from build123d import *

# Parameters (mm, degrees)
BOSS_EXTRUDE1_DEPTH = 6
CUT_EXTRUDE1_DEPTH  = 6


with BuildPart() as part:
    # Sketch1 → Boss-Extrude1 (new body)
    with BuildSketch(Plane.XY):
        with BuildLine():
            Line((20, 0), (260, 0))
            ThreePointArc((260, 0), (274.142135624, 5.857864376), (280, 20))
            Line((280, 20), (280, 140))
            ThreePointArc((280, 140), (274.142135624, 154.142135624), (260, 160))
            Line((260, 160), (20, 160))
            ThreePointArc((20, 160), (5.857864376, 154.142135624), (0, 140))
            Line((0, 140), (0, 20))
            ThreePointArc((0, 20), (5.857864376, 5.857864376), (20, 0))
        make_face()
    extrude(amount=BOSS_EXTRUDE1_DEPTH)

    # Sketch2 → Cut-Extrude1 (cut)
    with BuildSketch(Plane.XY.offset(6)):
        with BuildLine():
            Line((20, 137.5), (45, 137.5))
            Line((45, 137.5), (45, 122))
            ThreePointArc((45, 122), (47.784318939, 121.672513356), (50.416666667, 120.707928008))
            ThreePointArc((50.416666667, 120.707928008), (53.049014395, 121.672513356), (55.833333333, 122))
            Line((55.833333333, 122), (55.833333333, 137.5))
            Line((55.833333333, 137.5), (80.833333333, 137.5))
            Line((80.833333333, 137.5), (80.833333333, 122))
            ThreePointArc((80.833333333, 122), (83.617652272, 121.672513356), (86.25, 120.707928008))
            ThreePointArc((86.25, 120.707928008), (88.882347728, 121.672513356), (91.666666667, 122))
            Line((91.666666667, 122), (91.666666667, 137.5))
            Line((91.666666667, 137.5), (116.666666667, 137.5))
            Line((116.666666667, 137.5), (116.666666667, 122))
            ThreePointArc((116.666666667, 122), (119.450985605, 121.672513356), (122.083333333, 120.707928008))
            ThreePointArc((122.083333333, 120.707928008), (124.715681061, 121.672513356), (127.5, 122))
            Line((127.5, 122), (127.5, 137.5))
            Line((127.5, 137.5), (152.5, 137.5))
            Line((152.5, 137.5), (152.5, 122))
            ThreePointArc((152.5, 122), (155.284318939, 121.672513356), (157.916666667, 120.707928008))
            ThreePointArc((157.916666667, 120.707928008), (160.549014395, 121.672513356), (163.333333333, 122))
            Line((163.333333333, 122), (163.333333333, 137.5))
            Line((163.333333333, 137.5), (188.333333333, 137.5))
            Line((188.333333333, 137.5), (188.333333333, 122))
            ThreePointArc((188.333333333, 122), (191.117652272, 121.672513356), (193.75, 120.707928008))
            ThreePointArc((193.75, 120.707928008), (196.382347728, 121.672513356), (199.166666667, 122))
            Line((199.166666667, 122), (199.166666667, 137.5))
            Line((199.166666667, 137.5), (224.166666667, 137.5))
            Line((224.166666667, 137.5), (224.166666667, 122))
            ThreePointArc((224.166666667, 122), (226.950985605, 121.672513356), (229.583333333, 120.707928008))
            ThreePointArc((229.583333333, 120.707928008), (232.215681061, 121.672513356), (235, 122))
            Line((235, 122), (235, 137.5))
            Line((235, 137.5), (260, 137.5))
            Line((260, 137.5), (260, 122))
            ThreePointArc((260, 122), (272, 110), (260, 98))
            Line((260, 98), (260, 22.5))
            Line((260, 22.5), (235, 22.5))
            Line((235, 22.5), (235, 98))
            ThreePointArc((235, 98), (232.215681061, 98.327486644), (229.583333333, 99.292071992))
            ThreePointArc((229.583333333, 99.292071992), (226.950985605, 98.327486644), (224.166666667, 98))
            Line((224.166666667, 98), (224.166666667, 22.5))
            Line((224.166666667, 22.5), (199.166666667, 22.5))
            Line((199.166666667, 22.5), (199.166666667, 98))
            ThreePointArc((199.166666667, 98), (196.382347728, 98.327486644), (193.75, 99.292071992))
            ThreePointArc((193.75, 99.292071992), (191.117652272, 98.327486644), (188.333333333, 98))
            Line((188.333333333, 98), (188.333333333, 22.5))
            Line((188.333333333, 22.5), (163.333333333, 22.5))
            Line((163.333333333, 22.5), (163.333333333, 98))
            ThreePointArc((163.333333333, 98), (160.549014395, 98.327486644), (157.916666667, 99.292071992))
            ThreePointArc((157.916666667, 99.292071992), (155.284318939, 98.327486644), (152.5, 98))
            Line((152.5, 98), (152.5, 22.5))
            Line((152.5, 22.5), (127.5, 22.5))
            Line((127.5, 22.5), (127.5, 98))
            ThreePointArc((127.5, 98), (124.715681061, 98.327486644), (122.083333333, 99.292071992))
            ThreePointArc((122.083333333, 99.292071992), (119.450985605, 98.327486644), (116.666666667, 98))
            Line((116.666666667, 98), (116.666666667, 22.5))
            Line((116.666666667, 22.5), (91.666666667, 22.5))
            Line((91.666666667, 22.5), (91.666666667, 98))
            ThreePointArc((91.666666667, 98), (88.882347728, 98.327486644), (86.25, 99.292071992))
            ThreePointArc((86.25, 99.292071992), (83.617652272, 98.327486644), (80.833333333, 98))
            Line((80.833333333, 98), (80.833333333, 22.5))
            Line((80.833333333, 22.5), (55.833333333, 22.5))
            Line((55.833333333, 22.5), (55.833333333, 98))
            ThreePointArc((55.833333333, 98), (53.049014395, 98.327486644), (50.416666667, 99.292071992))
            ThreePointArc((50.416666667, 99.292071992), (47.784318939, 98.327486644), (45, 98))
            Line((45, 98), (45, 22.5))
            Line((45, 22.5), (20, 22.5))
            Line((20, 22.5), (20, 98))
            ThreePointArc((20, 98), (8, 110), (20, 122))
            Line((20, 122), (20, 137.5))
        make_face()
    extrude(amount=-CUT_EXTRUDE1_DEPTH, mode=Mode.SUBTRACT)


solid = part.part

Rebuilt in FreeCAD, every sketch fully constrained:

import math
import FreeCAD as App
import Part
import Sketcher
from FreeCAD import Vector

doc = App.newDocument("Part")
body = doc.addObject("PartDesign::Body", "Body")

sketch1 = body.newObject("Sketcher::SketchObject", "Sketch")
sketch1.AttachmentSupport = (doc.getObject("XY_Plane"), [""])
sketch1.MapMode = "FlatFace"
sketch1.addGeometry([
    Part.LineSegment(Vector(20, 0, 0), Vector(260, 0, 0)),
    Part.ArcOfCircle(Part.Circle(Vector(260, 20, 0), Vector(0, 0, 1), 20), math.radians(-90), math.radians(0)),
    Part.LineSegment(Vector(280, 20, 0), Vector(280, 140, 0)),
    Part.ArcOfCircle(Part.Circle(Vector(260, 140, 0), Vector(0, 0, 1), 20), math.radians(0), math.radians(90)),
    Part.LineSegment(Vector(260, 160, 0), Vector(20, 160, 0)),
    Part.ArcOfCircle(Part.Circle(Vector(20, 140, 0), Vector(0, 0, 1), 20), math.radians(90), math.radians(180)),
    Part.LineSegment(Vector(0, 140, 0), Vector(0, 20, 0)),
    Part.ArcOfCircle(Part.Circle(Vector(20, 20, 0), Vector(0, 0, 1), 20), math.radians(180), math.radians(270)),
], False)
sketch1.addConstraint([
    Sketcher.Constraint("Tangent", 0, 2, 1, 1),
    Sketcher.Constraint("Tangent", 1, 2, 2, 1),
    Sketcher.Constraint("Tangent", 2, 2, 3, 1),
    Sketcher.Constraint("Tangent", 3, 2, 4, 1),
    Sketcher.Constraint("Tangent", 4, 2, 5, 1),
    Sketcher.Constraint("Tangent", 5, 2, 6, 1),
    Sketcher.Constraint("Tangent", 6, 2, 7, 1),
    Sketcher.Constraint("Tangent", 7, 2, 0, 1),
    Sketcher.Constraint("Horizontal", 0),
    Sketcher.Constraint("Vertical", 2),
    Sketcher.Constraint("Horizontal", 4),
    Sketcher.Constraint("Vertical", 6),
    Sketcher.Constraint("Equal", 1, 3),
    Sketcher.Constraint("Equal", 3, 5),
    Sketcher.Constraint("Equal", 5, 7),
    Sketcher.Constraint("PointOnObject", 0, 2, -1),
    Sketcher.Constraint("PointOnObject", 5, 2, -2),
    Sketcher.Constraint("Radius", 1, 20.0),
    Sketcher.Constraint("DistanceX", 0, 1, 0, 2, 240.0),
    Sketcher.Constraint("DistanceY", 2, 1, 2, 2, 120.0),
])
pad1 = body.newObject("PartDesign::Pad", "Pad")
pad1.Profile = sketch1
pad1.Length = 6

sketch2 = body.newObject("Sketcher::SketchObject", "Sketch001")
sketch2.AttachmentSupport = (doc.getObject("XY_Plane"), [""])
sketch2.MapMode = "FlatFace"
sketch2.AttachmentOffset = App.Placement(Vector(0, 0, 6), App.Rotation())
sketch2.addGeometry([
    Part.LineSegment(Vector(45, 138, 0), Vector(20, 138, 0)),
    Part.LineSegment(Vector(20, 138, 0), Vector(20, 122, 0)),
    Part.ArcOfCircle(Part.Circle(Vector(20, 110, 0), Vector(0, 0, 1), 12), math.radians(90), math.radians(270)),
    Part.LineSegment(Vector(20, 98, 0), Vector(20, 22, 0)),
    Part.LineSegment(Vector(20, 22, 0), Vector(45, 22, 0)),
    Part.LineSegment(Vector(45, 22, 0), Vector(45, 98, 0)),
    Part.ArcOfCircle(Part.Circle(Vector(45, 110, 0), Vector(0, 0, 1), 12), math.radians(-90), math.radians(-63)),
    Part.ArcOfCircle(Part.Circle(Vector(56, 110, 0), Vector(0, 0, 1), 12), math.radians(-117), math.radians(-90)),
    Part.LineSegment(Vector(56, 98, 0), Vector(56, 22, 0)),
    Part.LineSegment(Vector(56, 22, 0), Vector(81, 22, 0)),
    Part.LineSegment(Vector(81, 22, 0), Vector(81, 98, 0)),
    Part.ArcOfCircle(Part.Circle(Vector(81, 110, 0), Vector(0, 0, 1), 12), math.radians(-90), math.radians(-63)),
    Part.ArcOfCircle(Part.Circle(Vector(92, 110, 0), Vector(0, 0, 1), 12), math.radians(-117), math.radians(-90)),
    Part.LineSegment(Vector(92, 98, 0), Vector(92, 22, 0)),
    Part.LineSegment(Vector(92, 22, 0), Vector(117, 22, 0)),
    Part.LineSegment(Vector(117, 22, 0), Vector(117, 98, 0)),
    Part.ArcOfCircle(Part.Circle(Vector(117, 110, 0), Vector(0, 0, 1), 12), math.radians(-90), math.radians(-63)),
    Part.ArcOfCircle(Part.Circle(Vector(128, 110, 0), Vector(0, 0, 1), 12), math.radians(-117), math.radians(-90)),
    Part.LineSegment(Vector(128, 98, 0), Vector(128, 22, 0)),
    Part.LineSegment(Vector(128, 22, 0), Vector(152, 22, 0)),
    Part.LineSegment(Vector(152, 22, 0), Vector(152, 98, 0)),
    Part.ArcOfCircle(Part.Circle(Vector(152, 110, 0), Vector(0, 0, 1), 12), math.radians(-90), math.radians(-63)),
    Part.ArcOfCircle(Part.Circle(Vector(163, 110, 0), Vector(0, 0, 1), 12), math.radians(-117), math.radians(-90)),
    Part.LineSegment(Vector(163, 98, 0), Vector(163, 22, 0)),
    Part.LineSegment(Vector(163, 22, 0), Vector(188, 22, 0)),
    Part.LineSegment(Vector(188, 22, 0), Vector(188, 98, 0)),
    Part.ArcOfCircle(Part.Circle(Vector(188, 110, 0), Vector(0, 0, 1), 12), math.radians(-90), math.radians(-63)),
    Part.ArcOfCircle(Part.Circle(Vector(199, 110, 0), Vector(0, 0, 1), 12), math.radians(-117), math.radians(-90)),
    Part.LineSegment(Vector(199, 98, 0), Vector(199, 22, 0)),
    Part.LineSegment(Vector(199, 22, 0), Vector(224, 22, 0)),
    Part.LineSegment(Vector(224, 22, 0), Vector(224, 98, 0)),
    Part.ArcOfCircle(Part.Circle(Vector(224, 110, 0), Vector(0, 0, 1), 12), math.radians(-90), math.radians(-63)),
    Part.ArcOfCircle(Part.Circle(Vector(235, 110, 0), Vector(0, 0, 1), 12), math.radians(-117), math.radians(-90)),
    Part.LineSegment(Vector(235, 98, 0), Vector(235, 22, 0)),
    Part.LineSegment(Vector(235, 22, 0), Vector(260, 22, 0)),
    Part.LineSegment(Vector(260, 22, 0), Vector(260, 98, 0)),
    Part.ArcOfCircle(Part.Circle(Vector(260, 110, 0), Vector(0, 0, 1), 12), math.radians(-90), math.radians(90)),
    Part.LineSegment(Vector(260, 122, 0), Vector(260, 138, 0)),
    Part.LineSegment(Vector(260, 138, 0), Vector(235, 138, 0)),
    Part.LineSegment(Vector(235, 138, 0), Vector(235, 122, 0)),
    Part.ArcOfCircle(Part.Circle(Vector(235, 110, 0), Vector(0, 0, 1), 12), math.radians(90), math.radians(117)),
    Part.ArcOfCircle(Part.Circle(Vector(224, 110, 0), Vector(0, 0, 1), 12), math.radians(63), math.radians(90)),
    Part.LineSegment(Vector(224, 122, 0), Vector(224, 138, 0)),
    Part.LineSegment(Vector(224, 138, 0), Vector(199, 138, 0)),
    Part.LineSegment(Vector(199, 138, 0), Vector(199, 122, 0)),
    Part.ArcOfCircle(Part.Circle(Vector(199, 110, 0), Vector(0, 0, 1), 12), math.radians(90), math.radians(117)),
    Part.ArcOfCircle(Part.Circle(Vector(188, 110, 0), Vector(0, 0, 1), 12), math.radians(63), math.radians(90)),
    Part.LineSegment(Vector(188, 122, 0), Vector(188, 138, 0)),
    Part.LineSegment(Vector(188, 138, 0), Vector(163, 138, 0)),
    Part.LineSegment(Vector(163, 138, 0), Vector(163, 122, 0)),
    Part.ArcOfCircle(Part.Circle(Vector(163, 110, 0), Vector(0, 0, 1), 12), math.radians(90), math.radians(117)),
    Part.ArcOfCircle(Part.Circle(Vector(152, 110, 0), Vector(0, 0, 1), 12), math.radians(63), math.radians(90)),
    Part.LineSegment(Vector(152, 122, 0), Vector(152, 138, 0)),
    Part.LineSegment(Vector(152, 138, 0), Vector(128, 138, 0)),
    Part.LineSegment(Vector(128, 138, 0), Vector(128, 122, 0)),
    Part.ArcOfCircle(Part.Circle(Vector(128, 110, 0), Vector(0, 0, 1), 12), math.radians(90), math.radians(117)),
    Part.ArcOfCircle(Part.Circle(Vector(117, 110, 0), Vector(0, 0, 1), 12), math.radians(63), math.radians(90)),
    Part.LineSegment(Vector(117, 122, 0), Vector(117, 138, 0)),
    Part.LineSegment(Vector(117, 138, 0), Vector(92, 138, 0)),
    Part.LineSegment(Vector(92, 138, 0), Vector(92, 122, 0)),
    Part.ArcOfCircle(Part.Circle(Vector(92, 110, 0), Vector(0, 0, 1), 12), math.radians(90), math.radians(117)),
    Part.ArcOfCircle(Part.Circle(Vector(81, 110, 0), Vector(0, 0, 1), 12), math.radians(63), math.radians(90)),
    Part.LineSegment(Vector(81, 122, 0), Vector(81, 138, 0)),
    Part.LineSegment(Vector(81, 138, 0), Vector(56, 138, 0)),
    Part.LineSegment(Vector(56, 138, 0), Vector(56, 122, 0)),
    Part.ArcOfCircle(Part.Circle(Vector(56, 110, 0), Vector(0, 0, 1), 12), math.radians(90), math.radians(117)),
    Part.ArcOfCircle(Part.Circle(Vector(45, 110, 0), Vector(0, 0, 1), 12), math.radians(63), math.radians(90)),
    Part.LineSegment(Vector(45, 122, 0), Vector(45, 138, 0)),
], False)
sketch2.addConstraint([
    Sketcher.Constraint("Coincident", 0, 2, 1, 1),
    Sketcher.Constraint("Coincident", 1, 2, 2, 1),
    Sketcher.Constraint("Coincident", 2, 2, 3, 1),
    Sketcher.Constraint("Coincident", 3, 2, 4, 1),
    Sketcher.Constraint("Coincident", 4, 2, 5, 1),
    Sketcher.Constraint("Coincident", 5, 2, 6, 1),
    Sketcher.Constraint("Coincident", 6, 2, 7, 1),
    Sketcher.Constraint("Coincident", 7, 2, 8, 1),
    Sketcher.Constraint("Coincident", 8, 2, 9, 1),
    Sketcher.Constraint("Coincident", 9, 2, 10, 1),
    Sketcher.Constraint("Coincident", 10, 2, 11, 1),
    Sketcher.Constraint("Coincident", 11, 2, 12, 1),
    Sketcher.Constraint("Coincident", 12, 2, 13, 1),
    Sketcher.Constraint("Coincident", 13, 2, 14, 1),
    Sketcher.Constraint("Coincident", 14, 2, 15, 1),
    Sketcher.Constraint("Coincident", 15, 2, 16, 1),
    Sketcher.Constraint("Coincident", 16, 2, 17, 1),
    Sketcher.Constraint("Coincident", 17, 2, 18, 1),
    Sketcher.Constraint("Coincident", 18, 2, 19, 1),
    Sketcher.Constraint("Coincident", 19, 2, 20, 1),
    Sketcher.Constraint("Coincident", 20, 2, 21, 1),
    Sketcher.Constraint("Coincident", 21, 2, 22, 1),
    Sketcher.Constraint("Coincident", 22, 2, 23, 1),
    Sketcher.Constraint("Coincident", 23, 2, 24, 1),
    Sketcher.Constraint("Coincident", 24, 2, 25, 1),
    Sketcher.Constraint("Coincident", 25, 2, 26, 1),
    Sketcher.Constraint("Coincident", 26, 2, 27, 1),
    Sketcher.Constraint("Coincident", 27, 2, 28, 1),
    Sketcher.Constraint("Coincident", 28, 2, 29, 1),
    Sketcher.Constraint("Coincident", 29, 2, 30, 1),
    Sketcher.Constraint("Coincident", 30, 2, 31, 1),
    Sketcher.Constraint("Coincident", 31, 2, 32, 1),
    Sketcher.Constraint("Coincident", 32, 2, 33, 1),
    Sketcher.Constraint("Coincident", 33, 2, 34, 1),
    Sketcher.Constraint("Coincident", 34, 2, 35, 1),
    Sketcher.Constraint("Coincident", 35, 2, 36, 1),
    Sketcher.Constraint("Coincident", 36, 2, 37, 1),
    Sketcher.Constraint("Coincident", 37, 2, 38, 1),
    Sketcher.Constraint("Coincident", 38, 2, 39, 1),
    Sketcher.Constraint("Coincident", 39, 2, 40, 1),
    Sketcher.Constraint("Coincident", 40, 2, 41, 1),
    Sketcher.Constraint("Coincident", 41, 2, 42, 1),
    Sketcher.Constraint("Coincident", 42, 2, 43, 1),
    Sketcher.Constraint("Coincident", 43, 2, 44, 1),
    Sketcher.Constraint("Coincident", 44, 2, 45, 1),
    Sketcher.Constraint("Coincident", 45, 2, 46, 1),
    Sketcher.Constraint("Coincident", 46, 2, 47, 1),
    Sketcher.Constraint("Coincident", 47, 2, 48, 1),
    Sketcher.Constraint("Coincident", 48, 2, 49, 1),
    Sketcher.Constraint("Coincident", 49, 2, 50, 1),
    Sketcher.Constraint("Coincident", 50, 2, 51, 1),
    Sketcher.Constraint("Coincident", 51, 2, 52, 1),
    Sketcher.Constraint("Coincident", 52, 2, 53, 1),
    Sketcher.Constraint("Coincident", 53, 2, 54, 1),
    Sketcher.Constraint("Coincident", 54, 2, 55, 1),
    Sketcher.Constraint("Coincident", 55, 2, 56, 1),
    Sketcher.Constraint("Coincident", 56, 2, 57, 1),
    Sketcher.Constraint("Coincident", 57, 2, 58, 1),
    Sketcher.Constraint("Coincident", 58, 2, 59, 1),
    Sketcher.Constraint("Coincident", 59, 2, 60, 1),
    Sketcher.Constraint("Coincident", 60, 2, 61, 1),
    Sketcher.Constraint("Coincident", 61, 2, 62, 1),
    Sketcher.Constraint("Coincident", 62, 2, 63, 1),
    Sketcher.Constraint("Coincident", 63, 2, 64, 1),
    Sketcher.Constraint("Coincident", 64, 2, 65, 1),
    Sketcher.Constraint("Coincident", 65, 2, 66, 1),
    Sketcher.Constraint("Coincident", 66, 2, 67, 1),
    Sketcher.Constraint("Coincident", 67, 2, 0, 1),
    Sketcher.Constraint("Horizontal", 0),
    Sketcher.Constraint("Vertical", 1),
    Sketcher.Constraint("Vertical", 3),
    Sketcher.Constraint("Horizontal", 4),
    Sketcher.Constraint("Vertical", 5),
    Sketcher.Constraint("Vertical", 8),
    Sketcher.Constraint("Horizontal", 9),
    Sketcher.Constraint("Vertical", 10),
    Sketcher.Constraint("Vertical", 13),
    Sketcher.Constraint("Horizontal", 14),
    Sketcher.Constraint("Vertical", 15),
    Sketcher.Constraint("Vertical", 18),
    Sketcher.Constraint("Horizontal", 19),
    Sketcher.Constraint("Vertical", 20),
    Sketcher.Constraint("Vertical", 23),
    Sketcher.Constraint("Horizontal", 24),
    Sketcher.Constraint("Vertical", 25),
    Sketcher.Constraint("Vertical", 28),
    Sketcher.Constraint("Horizontal", 29),
    Sketcher.Constraint("Vertical", 30),
    Sketcher.Constraint("Vertical", 33),
    Sketcher.Constraint("Horizontal", 34),
    Sketcher.Constraint("Vertical", 35),
    Sketcher.Constraint("Vertical", 37),
    Sketcher.Constraint("Horizontal", 38),
    Sketcher.Constraint("Vertical", 39),
    Sketcher.Constraint("Vertical", 42),
    Sketcher.Constraint("Horizontal", 43),
    Sketcher.Constraint("Vertical", 44),
    Sketcher.Constraint("Vertical", 47),
    Sketcher.Constraint("Horizontal", 48),
    Sketcher.Constraint("Vertical", 49),
    Sketcher.Constraint("Vertical", 52),
    Sketcher.Constraint("Horizontal", 53),
    Sketcher.Constraint("Vertical", 54),
    Sketcher.Constraint("Vertical", 57),
    Sketcher.Constraint("Horizontal", 58),
    Sketcher.Constraint("Vertical", 59),
    Sketcher.Constraint("Vertical", 62),
    Sketcher.Constraint("Horizontal", 63),
    Sketcher.Constraint("Vertical", 64),
    Sketcher.Constraint("Vertical", 67),
    Sketcher.Constraint("Coincident", 40, 3, 32, 3),
    Sketcher.Constraint("Coincident", 41, 3, 31, 3),
    Sketcher.Constraint("Coincident", 45, 3, 27, 3),
    Sketcher.Constraint("Coincident", 46, 3, 26, 3),
    Sketcher.Constraint("Coincident", 50, 3, 22, 3),
    Sketcher.Constraint("Coincident", 51, 3, 21, 3),
    Sketcher.Constraint("Coincident", 55, 3, 17, 3),
    Sketcher.Constraint("Coincident", 56, 3, 16, 3),
    Sketcher.Constraint("Coincident", 60, 3, 12, 3),
    Sketcher.Constraint("Coincident", 61, 3, 11, 3),
    Sketcher.Constraint("Coincident", 65, 3, 7, 3),
    Sketcher.Constraint("Coincident", 66, 3, 6, 3),
    Sketcher.Constraint("Equal", 2, 6),
    Sketcher.Constraint("Equal", 6, 7),
    Sketcher.Constraint("Equal", 7, 11),
    Sketcher.Constraint("Equal", 11, 12),
    Sketcher.Constraint("Equal", 12, 16),
    Sketcher.Constraint("Equal", 16, 17),
    Sketcher.Constraint("Equal", 17, 21),
    Sketcher.Constraint("Equal", 21, 22),
    Sketcher.Constraint("Equal", 22, 26),
    Sketcher.Constraint("Equal", 26, 27),
    Sketcher.Constraint("Equal", 27, 31),
    Sketcher.Constraint("Equal", 31, 32),
    Sketcher.Constraint("Equal", 32, 36),
    Sketcher.Constraint("Equal", 36, 40),
    Sketcher.Constraint("Equal", 40, 41),
    Sketcher.Constraint("Equal", 41, 45),
    Sketcher.Constraint("Equal", 45, 46),
    Sketcher.Constraint("Equal", 46, 50),
    Sketcher.Constraint("Equal", 50, 51),
    Sketcher.Constraint("Equal", 51, 55),
    Sketcher.Constraint("Equal", 55, 56),
    Sketcher.Constraint("Equal", 56, 60),
    Sketcher.Constraint("Equal", 60, 61),
    Sketcher.Constraint("Equal", 61, 65),
    Sketcher.Constraint("Equal", 65, 66),
    Sketcher.Constraint("Horizontal", 2, 3, 6, 3),
    Sketcher.Constraint("Horizontal", 6, 3, 7, 3),
    Sketcher.Constraint("Horizontal", 7, 3, 11, 3),
    Sketcher.Constraint("Horizontal", 11, 3, 12, 3),
    Sketcher.Constraint("Horizontal", 12, 3, 16, 3),
    Sketcher.Constraint("Horizontal", 16, 3, 17, 3),
    Sketcher.Constraint("Horizontal", 17, 3, 21, 3),
    Sketcher.Constraint("Horizontal", 21, 3, 22, 3),
    Sketcher.Constraint("Horizontal", 22, 3, 26, 3),
    Sketcher.Constraint("Horizontal", 26, 3, 27, 3),
    Sketcher.Constraint("Horizontal", 27, 3, 31, 3),
    Sketcher.Constraint("Horizontal", 31, 3, 32, 3),
    Sketcher.Constraint("Horizontal", 32, 3, 36, 3),
    Sketcher.Constraint("Horizontal", 4, 2, 8, 2),
    Sketcher.Constraint("Horizontal", 6, 2, 11, 2),
    Sketcher.Constraint("Horizontal", 9, 2, 13, 2),
    Sketcher.Constraint("Horizontal", 11, 2, 16, 2),
    Sketcher.Constraint("Horizontal", 14, 2, 18, 2),
    Sketcher.Constraint("Horizontal", 16, 2, 21, 2),
    Sketcher.Constraint("Horizontal", 19, 2, 23, 2),
    Sketcher.Constraint("Horizontal", 21, 2, 26, 2),
    Sketcher.Constraint("Horizontal", 24, 2, 28, 2),
    Sketcher.Constraint("Horizontal", 26, 2, 31, 2),
    Sketcher.Constraint("Horizontal", 29, 2, 33, 2),
    Sketcher.Constraint("Horizontal", 0, 2, 37, 2),
    Sketcher.Constraint("Horizontal", 38, 2, 42, 2),
    Sketcher.Constraint("Horizontal", 43, 2, 47, 2),
    Sketcher.Constraint("Horizontal", 48, 2, 52, 2),
    Sketcher.Constraint("Horizontal", 53, 2, 57, 2),
    Sketcher.Constraint("Horizontal", 58, 2, 62, 2),
    Sketcher.Constraint("Vertical", 2, 3, 0, 2),
    Sketcher.Constraint("Vertical", 1, 2, 2, 2),
    Sketcher.Constraint("Vertical", 66, 3, 4, 2),
    Sketcher.Constraint("Vertical", 65, 3, 7, 2),
    Sketcher.Constraint("Vertical", 61, 3, 9, 2),
    Sketcher.Constraint("Vertical", 60, 3, 12, 2),
    Sketcher.Constraint("Vertical", 56, 3, 14, 2),
    Sketcher.Constraint("Vertical", 55, 3, 17, 2),
    Sketcher.Constraint("Vertical", 51, 3, 19, 2),
    Sketcher.Constraint("Vertical", 50, 3, 22, 2),
    Sketcher.Constraint("Vertical", 46, 3, 24, 2),
    Sketcher.Constraint("Vertical", 45, 3, 27, 2),
    Sketcher.Constraint("Vertical", 41, 3, 29, 2),
    Sketcher.Constraint("Vertical", 40, 3, 32, 2),
    Sketcher.Constraint("Vertical", 36, 3, 34, 2),
    Sketcher.Constraint("Vertical", 35, 2, 36, 2),
    Sketcher.Constraint("Vertical", 33, 2, 38, 2),
    Sketcher.Constraint("Vertical", 30, 2, 41, 2),
    Sketcher.Constraint("Vertical", 28, 2, 43, 2),
    Sketcher.Constraint("Vertical", 25, 2, 46, 2),
    Sketcher.Constraint("Vertical", 23, 2, 48, 2),
    Sketcher.Constraint("Vertical", 20, 2, 51, 2),
    Sketcher.Constraint("Vertical", 18, 2, 53, 2),
    Sketcher.Constraint("Vertical", 15, 2, 56, 2),
    Sketcher.Constraint("Vertical", 13, 2, 58, 2),
    Sketcher.Constraint("Vertical", 10, 2, 61, 2),
    Sketcher.Constraint("Vertical", 8, 2, 63, 2),
    Sketcher.Constraint("Vertical", 5, 2, 66, 2),
    Sketcher.Constraint("Equal", 4, 9),
    Sketcher.Constraint("Equal", 9, 14),
    Sketcher.Constraint("Equal", 14, 19),
    Sketcher.Constraint("Equal", 19, 24),
    Sketcher.Constraint("Equal", 24, 29),
    Sketcher.Constraint("Equal", 29, 34),
    Sketcher.Constraint("Radius", 2, 12.0),
    Sketcher.Constraint("DistanceX", 0, 2, 0, 1, 25.0),
    Sketcher.Constraint("DistanceY", 1, 2, 1, 1, 15.5),
    Sketcher.Constraint("DistanceY", 3, 2, 3, 1, 75.5),
    Sketcher.Constraint("DistanceX", -1, 1, 2, 3, 20.0),
    Sketcher.Constraint("DistanceY", -1, 1, 2, 3, 110.0),
    Sketcher.Constraint("DistanceX", -1, 1, 32, 3, 235.0),
])
pocket1 = body.newObject("PartDesign::Pocket", "Pocket")
pocket1.Profile = sketch2
pocket1.Length = 6

doc.recompute()
